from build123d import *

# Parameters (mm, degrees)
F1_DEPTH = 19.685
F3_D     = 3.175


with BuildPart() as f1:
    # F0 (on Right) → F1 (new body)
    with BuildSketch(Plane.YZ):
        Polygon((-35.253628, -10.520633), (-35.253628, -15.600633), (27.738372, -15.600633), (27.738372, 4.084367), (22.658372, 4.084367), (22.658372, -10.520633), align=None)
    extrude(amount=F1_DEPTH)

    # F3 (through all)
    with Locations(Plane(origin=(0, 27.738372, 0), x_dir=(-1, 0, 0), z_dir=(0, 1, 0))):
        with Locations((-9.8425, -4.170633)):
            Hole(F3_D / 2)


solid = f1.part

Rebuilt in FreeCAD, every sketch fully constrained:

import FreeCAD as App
import Part
import Sketcher
Q = App.Units.Quantity


def add_polygon(sketch, points):
    """Adds a closed chain of lines whose ends are joined by coincident constraints."""
    first, n = sketch.GeometryCount, len(points)
    for a, b in zip(points, points[1:] + points[:1]):
        sketch.addGeometry(Part.LineSegment(App.Vector(*a, 0), App.Vector(*b, 0)), False)
    for i in range(n):
        sketch.addConstraint(Sketcher.Constraint("Coincident", first + i, 2, first + (i + 1) % n, 1))

doc = App.newDocument("Part")
body = doc.addObject("PartDesign::Body", "Body")

sketch1 = body.newObject("Sketcher::SketchObject", "Sketch")
sketch1.AttachmentSupport = (doc.getObject("YZ_Plane"), [""])
sketch1.MapMode = "FlatFace"
add_polygon(sketch1, [(-35.253628, -10.520633), (-35.253628, -15.600633), (27.738372, -15.600633), (27.738372, 4.084367), (22.658372, 4.084367), (22.658372, -10.520633)])
sketch1.addConstraint(Sketcher.Constraint("Vertical", 0))
sketch1.addConstraint(Sketcher.Constraint("Horizontal", 1))
sketch1.addConstraint(Sketcher.Constraint("Vertical", 2))
sketch1.addConstraint(Sketcher.Constraint("Horizontal", 3))
sketch1.addConstraint(Sketcher.Constraint("Vertical", 4))
sketch1.addConstraint(Sketcher.Constraint("Horizontal", 5))
sketch1.addConstraint(Sketcher.Constraint("Equal", 3, 0))
sketch1.addConstraint(Sketcher.Constraint("DistanceX", 3, 2, 3, 1, Q("0.2 in")))
sketch1.addConstraint(Sketcher.Constraint("DistanceX", 1, 1, 1, 2, Q("2.48 in")))
sketch1.addConstraint(Sketcher.Constraint("DistanceY", 2, 1, 2, 2, Q("0.775 in")))
sketch1.addConstraint(Sketcher.Constraint("DistanceX", -1, 1, 1, 2, 27.738372))
sketch1.addConstraint(Sketcher.Constraint("DistanceY", 0, 2, -1, 1, 15.600633))
pad1 = body.newObject("PartDesign::Pad", "Pad")
pad1.Profile = sketch1
pad1.Length = Q("0.775 in")

sketch2 = body.newObject("Sketcher::SketchObject", "Sketch001")
sketch2.AttachmentSupport = (doc.getObject("XZ_Plane"), [""])
sketch2.MapMode = "FlatFace"
sketch2.AttachmentOffset = App.Placement(App.Vector(0, 0, -27.738372), App.Rotation())
sketch2.addGeometry(Part.Circle(App.Vector(9.8425, -4.170633, 0), App.Vector(0, 0, 1), 1.5875), False)
sketch2.addConstraint(Sketcher.Constraint("Diameter", 0, Q("0.125 in")))
sketch2.addConstraint(Sketcher.Constraint("DistanceX", -1, 1, 0, 3, Q("0.3875 in")))
sketch2.addConstraint(Sketcher.Constraint("DistanceY", 0, 3, -1, 1, 4.170633))
doc.recompute()
hole = body.newObject("PartDesign::Hole", "Hole")
hole.Profile = sketch2
hole.ThreadType = "None"
hole.Diameter = Q("0.125 in")
hole.DepthType = "ThroughAll"
hole.Reversed = True

doc.recompute()
